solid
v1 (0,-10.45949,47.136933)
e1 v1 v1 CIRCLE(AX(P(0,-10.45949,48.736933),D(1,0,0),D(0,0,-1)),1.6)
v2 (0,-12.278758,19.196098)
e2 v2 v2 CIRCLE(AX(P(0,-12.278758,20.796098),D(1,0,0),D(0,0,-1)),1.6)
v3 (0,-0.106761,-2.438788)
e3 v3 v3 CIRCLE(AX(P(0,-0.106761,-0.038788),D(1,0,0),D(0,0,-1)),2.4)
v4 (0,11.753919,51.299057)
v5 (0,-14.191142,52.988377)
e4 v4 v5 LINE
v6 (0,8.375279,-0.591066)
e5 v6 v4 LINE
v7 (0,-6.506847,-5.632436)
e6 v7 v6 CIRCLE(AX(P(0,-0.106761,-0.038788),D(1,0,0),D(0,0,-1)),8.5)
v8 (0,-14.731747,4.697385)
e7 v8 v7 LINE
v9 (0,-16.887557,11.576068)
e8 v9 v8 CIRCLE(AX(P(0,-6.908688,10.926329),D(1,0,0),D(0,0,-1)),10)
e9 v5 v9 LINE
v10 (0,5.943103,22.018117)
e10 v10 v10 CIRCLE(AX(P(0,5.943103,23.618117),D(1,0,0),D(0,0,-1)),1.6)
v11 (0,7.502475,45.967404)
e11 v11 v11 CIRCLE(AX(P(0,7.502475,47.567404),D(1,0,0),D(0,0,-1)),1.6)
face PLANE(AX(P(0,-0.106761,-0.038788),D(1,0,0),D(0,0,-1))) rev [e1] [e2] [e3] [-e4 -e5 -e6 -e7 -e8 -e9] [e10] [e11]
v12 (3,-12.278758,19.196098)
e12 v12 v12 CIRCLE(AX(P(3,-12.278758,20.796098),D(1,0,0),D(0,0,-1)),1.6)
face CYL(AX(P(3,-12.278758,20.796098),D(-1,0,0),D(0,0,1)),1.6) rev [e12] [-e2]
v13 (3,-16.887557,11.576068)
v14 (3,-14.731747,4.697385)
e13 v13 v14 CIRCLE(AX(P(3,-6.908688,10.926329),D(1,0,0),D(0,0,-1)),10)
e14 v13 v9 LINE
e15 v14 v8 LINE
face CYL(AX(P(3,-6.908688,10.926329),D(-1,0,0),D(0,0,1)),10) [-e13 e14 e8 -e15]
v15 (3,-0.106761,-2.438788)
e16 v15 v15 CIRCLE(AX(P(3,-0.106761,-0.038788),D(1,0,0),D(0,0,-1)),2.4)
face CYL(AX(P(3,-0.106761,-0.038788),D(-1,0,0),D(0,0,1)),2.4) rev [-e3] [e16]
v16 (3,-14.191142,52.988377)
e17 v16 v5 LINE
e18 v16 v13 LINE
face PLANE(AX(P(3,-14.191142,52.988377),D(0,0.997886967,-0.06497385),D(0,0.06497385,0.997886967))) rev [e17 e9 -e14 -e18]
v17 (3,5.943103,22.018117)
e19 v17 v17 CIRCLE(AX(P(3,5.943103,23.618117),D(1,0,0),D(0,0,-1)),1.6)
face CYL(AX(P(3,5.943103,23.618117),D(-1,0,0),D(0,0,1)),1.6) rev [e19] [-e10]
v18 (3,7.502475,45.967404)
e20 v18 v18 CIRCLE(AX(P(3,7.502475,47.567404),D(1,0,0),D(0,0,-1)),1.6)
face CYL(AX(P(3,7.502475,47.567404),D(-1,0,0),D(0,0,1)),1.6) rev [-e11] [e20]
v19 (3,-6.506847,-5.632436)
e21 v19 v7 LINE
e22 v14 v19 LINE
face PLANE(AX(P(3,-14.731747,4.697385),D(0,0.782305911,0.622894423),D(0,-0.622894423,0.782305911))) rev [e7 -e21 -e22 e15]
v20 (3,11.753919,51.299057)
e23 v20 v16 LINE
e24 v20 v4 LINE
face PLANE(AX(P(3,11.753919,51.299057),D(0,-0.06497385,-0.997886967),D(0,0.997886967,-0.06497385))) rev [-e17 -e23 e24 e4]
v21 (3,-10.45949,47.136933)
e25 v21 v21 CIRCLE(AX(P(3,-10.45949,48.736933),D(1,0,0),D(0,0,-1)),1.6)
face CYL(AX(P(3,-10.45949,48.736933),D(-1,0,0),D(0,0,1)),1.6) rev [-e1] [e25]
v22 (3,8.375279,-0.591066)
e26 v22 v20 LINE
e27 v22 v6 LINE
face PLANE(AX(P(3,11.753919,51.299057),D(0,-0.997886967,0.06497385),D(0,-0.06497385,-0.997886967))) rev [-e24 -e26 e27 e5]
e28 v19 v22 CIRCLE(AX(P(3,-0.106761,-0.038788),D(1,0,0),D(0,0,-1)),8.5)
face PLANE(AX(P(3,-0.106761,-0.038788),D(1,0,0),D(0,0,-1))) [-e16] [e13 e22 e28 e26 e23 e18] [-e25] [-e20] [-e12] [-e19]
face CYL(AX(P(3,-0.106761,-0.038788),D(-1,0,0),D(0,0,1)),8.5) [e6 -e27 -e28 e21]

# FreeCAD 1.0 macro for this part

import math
import FreeCAD as App
import Part
import Sketcher

V = App.Vector
Q = App.Units.Quantity

doc = App.newDocument("Part")
body = doc.addObject("PartDesign::Body", "Body")

sketch1 = doc.addObject("Sketcher::SketchObject", "Sketch")
body.addObject(sketch1)
sketch1.AttachmentSupport = (doc.YZ_Plane, [""])
sketch1.MapMode = "FlatFace"
sketch1.addGeometry([
    Part.LineSegment(V(-14.191142, 52.988377, 0), V(-16.887557, 11.576068, 0)),
    Part.ArcOfCircle(Part.Circle(V(-6.908688, 10.926329, 0), V(0, 0, 1), 10), math.radians(176.274648), math.radians(218.52781)),
    Part.LineSegment(V(-14.731747, 4.697385, 0), V(-6.506847, -5.632436, 0)),
    Part.ArcOfCircle(Part.Circle(V(-0.106761, -0.038788, 0), V(0, 0, 1), 8.5), math.radians(-138.846678), math.radians(-3.725352)),
    Part.LineSegment(V(8.375279, -0.591066, 0), V(11.753919, 51.299057, 0)),
    Part.LineSegment(V(11.753919, 51.299057, 0), V(-14.191142, 52.988377, 0)),
    Part.Circle(V(-10.45949, 48.736933, 0), V(0, 0, 1), 1.6),
    Part.Circle(V(-12.278758, 20.796098, 0), V(0, 0, 1), 1.6),
    Part.Circle(V(7.502475, 47.567404, 0), V(0, 0, 1), 1.6),
    Part.Circle(V(-0.106761, -0.038788, 0), V(0, 0, 1), 2.4),
    Part.Circle(V(5.943103, 23.618117, 0), V(0, 0, 1), 1.6),
], False)
sketch1.addConstraint([
    Sketcher.Constraint("Coincident", 0, 2, 1, 1),
    Sketcher.Constraint("Coincident", 1, 2, 2, 1),
    Sketcher.Constraint("Coincident", 2, 2, 3, 1),
    Sketcher.Constraint("Coincident", 3, 2, 4, 1),
    Sketcher.Constraint("Coincident", 4, 2, 5, 1),
    Sketcher.Constraint("Coincident", 5, 2, 0, 1),
    Sketcher.Constraint("Coincident", 9, 3, 3, 3),
    Sketcher.Constraint("Radius", 1, Q("10 mm")),
    Sketcher.Constraint("Diameter", 6, Q("3.2 mm")),
    Sketcher.Constraint("Diameter", 7, Q("3.2 mm")),
    Sketcher.Constraint("Diameter", 8, Q("3.2 mm")),
    Sketcher.Constraint("Diameter", 9, Q("4.8 mm")),
    Sketcher.Constraint("Diameter", 10, Q("3.2 mm")),
    Sketcher.Constraint("Radius", 3, Q("8.5 mm")),
    Sketcher.Constraint("Distance", 4, Q("52 mm")),
    Sketcher.Constraint("Distance", 5, Q("26 mm")),
    Sketcher.Constraint("Distance", 0, Q("41.5 mm")),
    Sketcher.Constraint("DistanceY", -1, 1, 7, 3, Q("20.796098 mm")),
    Sketcher.Constraint("DistanceX", 0, 2, 7, 3, Q("4.608799 mm")),
    Sketcher.Constraint("DistanceX", 1, 2, 2, 2, Q("8.2249 mm")),
    Sketcher.Constraint("DistanceY", -1, 1, 1, 3, Q("10.926329 mm")),
    Sketcher.Constraint("DistanceX", 3, 3, -1, 1, Q("0.106761 mm")),
    Sketcher.Constraint("DistanceX", 6, 3, -1, 1, Q("10.45949 mm")),
    Sketcher.Constraint("DistanceX", -1, 1, 3, 2, Q("8.375279 mm")),
    Sketcher.Constraint("DistanceX", -1, 1, 4, 2, Q("11.753919 mm")),
    Sketcher.Constraint("DistanceY", 3, 3, 6, 3, Q("48.775721 mm")),
    Sketcher.Constraint("DistanceX", 7, 3, 1, 3, Q("5.37007 mm")),
    Sketcher.Constraint("DistanceY", 8, 3, 6, 3, Q("1.169529 mm")),
    Sketcher.Constraint("DistanceX", 1, 3, 10, 3, Q("12.851791 mm")),
    Sketcher.Constraint("DistanceY", 7, 3, 10, 3, Q("2.822019 mm")),
    Sketcher.Constraint("DistanceX", 0, 2, 1, 2, Q("2.155811 mm")),
    Sketcher.Constraint("DistanceY", 2, 2, 3, 3, Q("5.593648 mm")),
    Sketcher.Constraint("DistanceY", 2, 2, 1, 2, Q("10.329821 mm")),
    Sketcher.Constraint("DistanceX", -1, 1, 8, 3, Q("7.502475 mm")),
])
pad1 = doc.addObject("PartDesign::Pad", "Pad")
body.addObject(pad1)
pad1.Profile = sketch1
pad1.Length = 3

doc.recompute()
